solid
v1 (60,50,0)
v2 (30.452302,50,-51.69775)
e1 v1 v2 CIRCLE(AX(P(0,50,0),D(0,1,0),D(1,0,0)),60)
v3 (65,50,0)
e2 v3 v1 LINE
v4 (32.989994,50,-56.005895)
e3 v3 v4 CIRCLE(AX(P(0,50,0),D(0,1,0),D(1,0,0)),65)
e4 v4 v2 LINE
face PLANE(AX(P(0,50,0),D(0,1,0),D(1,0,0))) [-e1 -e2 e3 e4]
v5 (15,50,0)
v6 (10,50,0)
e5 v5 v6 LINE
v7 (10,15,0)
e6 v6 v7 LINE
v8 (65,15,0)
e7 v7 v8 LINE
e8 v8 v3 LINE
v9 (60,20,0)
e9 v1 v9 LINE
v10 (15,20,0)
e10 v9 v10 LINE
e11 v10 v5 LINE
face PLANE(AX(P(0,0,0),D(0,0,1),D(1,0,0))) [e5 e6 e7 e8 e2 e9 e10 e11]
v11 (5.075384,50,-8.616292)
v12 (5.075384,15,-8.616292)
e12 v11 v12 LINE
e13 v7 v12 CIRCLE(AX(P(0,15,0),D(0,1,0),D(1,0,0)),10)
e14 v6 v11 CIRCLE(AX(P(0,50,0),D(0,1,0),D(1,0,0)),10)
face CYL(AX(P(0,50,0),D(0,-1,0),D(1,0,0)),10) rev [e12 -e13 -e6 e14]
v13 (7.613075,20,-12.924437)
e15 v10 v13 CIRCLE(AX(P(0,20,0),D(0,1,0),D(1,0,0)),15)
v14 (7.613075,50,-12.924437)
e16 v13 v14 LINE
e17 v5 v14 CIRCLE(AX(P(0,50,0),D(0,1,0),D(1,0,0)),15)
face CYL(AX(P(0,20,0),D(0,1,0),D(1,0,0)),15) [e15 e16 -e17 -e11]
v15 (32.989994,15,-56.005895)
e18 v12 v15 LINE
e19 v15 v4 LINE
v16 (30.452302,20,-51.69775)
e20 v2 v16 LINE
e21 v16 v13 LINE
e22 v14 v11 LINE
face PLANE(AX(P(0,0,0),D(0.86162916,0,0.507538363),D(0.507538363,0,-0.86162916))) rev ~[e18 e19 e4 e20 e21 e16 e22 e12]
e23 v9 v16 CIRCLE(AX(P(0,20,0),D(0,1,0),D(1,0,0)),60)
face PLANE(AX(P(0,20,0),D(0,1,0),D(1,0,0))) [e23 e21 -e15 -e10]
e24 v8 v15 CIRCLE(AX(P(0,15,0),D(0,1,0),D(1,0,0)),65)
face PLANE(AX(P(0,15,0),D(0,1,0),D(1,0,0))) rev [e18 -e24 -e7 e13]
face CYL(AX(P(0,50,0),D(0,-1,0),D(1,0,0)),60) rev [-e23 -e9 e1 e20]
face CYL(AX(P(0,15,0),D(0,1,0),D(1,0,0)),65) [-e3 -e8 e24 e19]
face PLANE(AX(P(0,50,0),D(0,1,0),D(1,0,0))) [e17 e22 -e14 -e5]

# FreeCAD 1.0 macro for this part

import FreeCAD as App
import Part
import Sketcher
from FreeCAD import Vector

doc = App.newDocument("Part")
body = doc.addObject("PartDesign::Body", "Body")

# Sketch on XY plane
sketch1 = doc.addObject("Sketcher::SketchObject", "Sketch")
body.addObject(sketch1)
sketch1.AttachmentSupport = (doc.XY_Plane, [""])
sketch1.MapMode = "FlatFace"
sketch1.addGeometry([
    Part.LineSegment(Vector(15, 50, 0), Vector(10, 50, 0)),  # 0
    Part.LineSegment(Vector(10, 50, 0), Vector(10, 15, 0)),  # 1
    Part.LineSegment(Vector(10, 15, 0), Vector(65, 15, 0)),  # 2
    Part.LineSegment(Vector(65, 15, 0), Vector(65, 50, 0)),  # 3
    Part.LineSegment(Vector(65, 50, 0), Vector(60, 50, 0)),  # 4
    Part.LineSegment(Vector(60, 50, 0), Vector(60, 20, 0)),  # 5
    Part.LineSegment(Vector(60, 20, 0), Vector(15, 20, 0)),  # 6
    Part.LineSegment(Vector(15, 20, 0), Vector(15, 50, 0)),  # 7
], False)
sketch1.addConstraint([
    Sketcher.Constraint("Coincident", 0, 2, 1, 1),
    Sketcher.Constraint("Coincident", 1, 2, 2, 1),
    Sketcher.Constraint("Coincident", 2, 2, 3, 1),
    Sketcher.Constraint("Coincident", 3, 2, 4, 1),
    Sketcher.Constraint("Coincident", 4, 2, 5, 1),
    Sketcher.Constraint("Coincident", 5, 2, 6, 1),
    Sketcher.Constraint("Coincident", 6, 2, 7, 1),
    Sketcher.Constraint("Coincident", 7, 2, 0, 1),
    Sketcher.Constraint("Horizontal", 0),
    Sketcher.Constraint("Vertical", 1),
    Sketcher.Constraint("Horizontal", 2),
    Sketcher.Constraint("Vertical", 3),
    Sketcher.Constraint("Horizontal", 4),
    Sketcher.Constraint("Vertical", 5),
    Sketcher.Constraint("Horizontal", 6),
    Sketcher.Constraint("Vertical", 7),
    Sketcher.Constraint("Horizontal", 0, 2, 3, 2),
    Sketcher.Constraint("Equal", 0, 4),
    Sketcher.Constraint("DistanceX", 0, 2, 0, 1, 5.0),
    Sketcher.Constraint("DistanceX", 2, 1, 2, 2, 55.0),
    Sketcher.Constraint("DistanceY", 1, 2, 1, 1, 35.0),
    Sketcher.Constraint("DistanceY", 5, 2, 5, 1, 30.0),
    Sketcher.Constraint("DistanceX", -1, 1, 0, 2, 10.0),
    Sketcher.Constraint("DistanceY", -1, 1, 0, 2, 50.0),
])
revolution = doc.addObject("PartDesign::Revolution", "Revolution")
body.addObject(revolution)
revolution.Profile = sketch1
revolution.ReferenceAxis = (sketch1, ["V_Axis"])
revolution.Angle = 59.5

doc.recompute()
